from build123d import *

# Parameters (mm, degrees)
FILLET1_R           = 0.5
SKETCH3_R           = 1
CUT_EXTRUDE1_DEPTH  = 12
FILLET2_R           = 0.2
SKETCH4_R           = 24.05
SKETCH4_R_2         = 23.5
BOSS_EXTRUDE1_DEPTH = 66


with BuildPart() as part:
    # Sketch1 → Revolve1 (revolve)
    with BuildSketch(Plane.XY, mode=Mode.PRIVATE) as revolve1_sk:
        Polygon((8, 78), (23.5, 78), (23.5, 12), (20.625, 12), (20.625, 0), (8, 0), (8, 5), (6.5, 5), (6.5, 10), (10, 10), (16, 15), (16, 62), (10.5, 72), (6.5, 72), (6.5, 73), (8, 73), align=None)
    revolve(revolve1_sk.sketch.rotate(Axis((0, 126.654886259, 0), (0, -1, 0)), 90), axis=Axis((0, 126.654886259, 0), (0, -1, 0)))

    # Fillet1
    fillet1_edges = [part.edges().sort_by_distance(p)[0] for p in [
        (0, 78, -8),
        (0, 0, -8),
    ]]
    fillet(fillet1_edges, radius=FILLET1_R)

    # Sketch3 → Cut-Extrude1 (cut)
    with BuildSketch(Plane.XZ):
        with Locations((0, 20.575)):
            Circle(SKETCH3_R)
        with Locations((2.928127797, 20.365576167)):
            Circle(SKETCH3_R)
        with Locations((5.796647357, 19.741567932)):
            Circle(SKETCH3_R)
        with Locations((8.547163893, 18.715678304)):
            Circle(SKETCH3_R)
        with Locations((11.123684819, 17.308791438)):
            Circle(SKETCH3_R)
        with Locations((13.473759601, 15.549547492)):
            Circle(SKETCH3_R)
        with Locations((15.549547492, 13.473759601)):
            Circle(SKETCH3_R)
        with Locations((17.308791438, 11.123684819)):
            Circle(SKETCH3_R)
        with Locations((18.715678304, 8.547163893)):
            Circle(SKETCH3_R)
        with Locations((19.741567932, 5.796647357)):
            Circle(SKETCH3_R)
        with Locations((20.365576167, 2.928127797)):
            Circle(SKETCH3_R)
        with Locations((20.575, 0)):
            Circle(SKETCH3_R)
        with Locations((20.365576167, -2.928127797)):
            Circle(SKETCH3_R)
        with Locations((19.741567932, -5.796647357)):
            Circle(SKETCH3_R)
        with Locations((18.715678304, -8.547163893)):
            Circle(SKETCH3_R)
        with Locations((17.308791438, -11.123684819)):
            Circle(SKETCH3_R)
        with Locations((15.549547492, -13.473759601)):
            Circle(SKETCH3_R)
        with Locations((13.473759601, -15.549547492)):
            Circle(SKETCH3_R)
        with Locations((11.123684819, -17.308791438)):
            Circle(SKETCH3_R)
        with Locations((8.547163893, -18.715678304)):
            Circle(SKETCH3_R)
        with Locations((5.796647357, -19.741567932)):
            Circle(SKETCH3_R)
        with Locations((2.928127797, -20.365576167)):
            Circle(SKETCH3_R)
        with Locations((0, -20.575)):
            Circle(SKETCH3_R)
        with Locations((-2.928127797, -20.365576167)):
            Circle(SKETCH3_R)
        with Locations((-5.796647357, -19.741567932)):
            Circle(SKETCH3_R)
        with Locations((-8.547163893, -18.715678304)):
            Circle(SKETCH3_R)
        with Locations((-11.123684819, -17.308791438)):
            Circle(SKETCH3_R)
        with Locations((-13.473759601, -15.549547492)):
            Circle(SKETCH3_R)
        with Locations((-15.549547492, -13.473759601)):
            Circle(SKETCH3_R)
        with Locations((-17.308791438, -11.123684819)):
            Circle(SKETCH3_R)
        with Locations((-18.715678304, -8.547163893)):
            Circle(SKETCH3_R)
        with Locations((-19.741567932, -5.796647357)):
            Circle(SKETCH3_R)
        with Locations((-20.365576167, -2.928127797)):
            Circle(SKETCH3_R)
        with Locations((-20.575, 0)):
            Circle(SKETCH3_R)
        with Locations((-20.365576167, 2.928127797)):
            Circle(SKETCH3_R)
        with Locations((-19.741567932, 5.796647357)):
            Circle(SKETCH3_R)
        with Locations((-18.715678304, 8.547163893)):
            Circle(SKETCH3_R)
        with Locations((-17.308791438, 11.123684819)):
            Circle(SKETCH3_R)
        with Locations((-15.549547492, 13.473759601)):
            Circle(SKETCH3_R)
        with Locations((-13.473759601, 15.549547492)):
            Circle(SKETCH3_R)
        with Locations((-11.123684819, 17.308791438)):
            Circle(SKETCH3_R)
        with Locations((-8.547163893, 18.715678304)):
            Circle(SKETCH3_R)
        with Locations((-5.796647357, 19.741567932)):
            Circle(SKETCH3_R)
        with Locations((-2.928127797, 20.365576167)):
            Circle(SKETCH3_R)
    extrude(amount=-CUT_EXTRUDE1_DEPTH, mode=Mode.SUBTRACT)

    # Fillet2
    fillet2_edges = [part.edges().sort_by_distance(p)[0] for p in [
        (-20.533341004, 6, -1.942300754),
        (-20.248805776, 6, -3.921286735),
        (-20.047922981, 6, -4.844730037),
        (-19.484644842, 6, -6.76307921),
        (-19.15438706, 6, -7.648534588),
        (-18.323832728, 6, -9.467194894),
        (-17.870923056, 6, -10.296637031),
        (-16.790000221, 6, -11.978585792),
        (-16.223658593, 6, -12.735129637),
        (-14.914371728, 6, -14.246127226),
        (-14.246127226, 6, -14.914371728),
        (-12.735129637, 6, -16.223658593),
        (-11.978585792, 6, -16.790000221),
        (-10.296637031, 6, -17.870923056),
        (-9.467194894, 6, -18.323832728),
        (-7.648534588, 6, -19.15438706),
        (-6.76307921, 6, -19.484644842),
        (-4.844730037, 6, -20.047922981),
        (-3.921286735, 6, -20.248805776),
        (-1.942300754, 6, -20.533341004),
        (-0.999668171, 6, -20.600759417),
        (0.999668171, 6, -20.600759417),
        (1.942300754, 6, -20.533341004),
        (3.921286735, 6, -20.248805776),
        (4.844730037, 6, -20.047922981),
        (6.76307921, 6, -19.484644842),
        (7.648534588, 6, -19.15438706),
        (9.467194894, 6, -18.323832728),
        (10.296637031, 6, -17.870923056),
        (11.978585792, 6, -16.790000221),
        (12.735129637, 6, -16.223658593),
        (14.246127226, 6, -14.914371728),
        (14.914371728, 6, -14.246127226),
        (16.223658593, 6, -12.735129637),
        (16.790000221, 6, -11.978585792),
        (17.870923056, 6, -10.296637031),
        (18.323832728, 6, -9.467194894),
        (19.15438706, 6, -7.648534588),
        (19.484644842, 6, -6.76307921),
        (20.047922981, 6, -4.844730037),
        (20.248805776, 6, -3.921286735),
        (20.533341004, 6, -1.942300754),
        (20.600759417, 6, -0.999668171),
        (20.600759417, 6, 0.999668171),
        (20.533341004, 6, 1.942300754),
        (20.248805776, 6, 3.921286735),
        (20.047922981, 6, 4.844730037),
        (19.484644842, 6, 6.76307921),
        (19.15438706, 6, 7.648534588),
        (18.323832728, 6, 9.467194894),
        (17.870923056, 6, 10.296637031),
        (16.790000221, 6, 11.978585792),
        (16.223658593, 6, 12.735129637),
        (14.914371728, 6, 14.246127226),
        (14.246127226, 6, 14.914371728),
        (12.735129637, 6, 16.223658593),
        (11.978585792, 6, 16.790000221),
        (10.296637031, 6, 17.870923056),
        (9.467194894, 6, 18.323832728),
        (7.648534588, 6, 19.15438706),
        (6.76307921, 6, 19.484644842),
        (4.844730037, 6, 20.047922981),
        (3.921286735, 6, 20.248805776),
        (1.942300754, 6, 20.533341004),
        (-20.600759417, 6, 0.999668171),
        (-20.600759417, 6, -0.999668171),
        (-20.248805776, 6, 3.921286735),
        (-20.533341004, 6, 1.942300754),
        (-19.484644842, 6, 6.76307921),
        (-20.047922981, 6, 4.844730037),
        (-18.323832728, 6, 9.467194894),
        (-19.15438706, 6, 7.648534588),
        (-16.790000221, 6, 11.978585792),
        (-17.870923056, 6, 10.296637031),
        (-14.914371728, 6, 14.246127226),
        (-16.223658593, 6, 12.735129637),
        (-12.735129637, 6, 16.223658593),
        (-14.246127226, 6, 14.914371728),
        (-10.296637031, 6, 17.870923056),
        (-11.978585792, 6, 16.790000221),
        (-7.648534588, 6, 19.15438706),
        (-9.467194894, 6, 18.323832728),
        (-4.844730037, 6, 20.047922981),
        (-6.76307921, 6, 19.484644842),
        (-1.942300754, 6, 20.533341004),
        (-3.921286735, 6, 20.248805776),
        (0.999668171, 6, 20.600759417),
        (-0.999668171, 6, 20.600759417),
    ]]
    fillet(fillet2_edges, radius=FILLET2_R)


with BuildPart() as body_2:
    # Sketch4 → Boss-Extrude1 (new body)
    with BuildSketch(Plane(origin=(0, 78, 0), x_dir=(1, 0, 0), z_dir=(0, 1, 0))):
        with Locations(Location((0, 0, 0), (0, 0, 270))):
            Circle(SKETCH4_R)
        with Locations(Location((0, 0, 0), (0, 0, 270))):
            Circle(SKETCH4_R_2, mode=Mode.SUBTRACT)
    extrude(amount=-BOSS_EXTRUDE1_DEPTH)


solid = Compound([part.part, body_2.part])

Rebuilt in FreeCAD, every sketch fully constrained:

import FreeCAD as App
import Part
import Sketcher
from FreeCAD import Vector
Q = App.Units.Quantity


def edges_at(feature, points):
    """Names of the edges that pass closest to the given points."""
    edges = feature.Shape.Edges
    near = lambda p: min(range(len(edges)), key=lambda i: edges[i].distToShape(Part.Vertex(*p))[0])
    return sorted({f"Edge{near(p) + 1}" for p in points})

doc = App.newDocument("Part")
body = doc.addObject("PartDesign::Body", "Body")

# Sketch on XY plane
sketch1 = doc.addObject("Sketcher::SketchObject", "Sketch")
body.addObject(sketch1)
sketch1.AttachmentSupport = (doc.XY_Plane, [""])
sketch1.MapMode = "FlatFace"
sketch1.addGeometry(Part.LineSegment(Vector(23.5, 78, 0), Vector(8, 78, 0)), False)
sketch1.addGeometry(Part.LineSegment(Vector(8, 78, 0), Vector(8, 73, 0)), False)
sketch1.addGeometry(Part.LineSegment(Vector(8, 73, 0), Vector(6.5, 73, 0)), False)
sketch1.addGeometry(Part.LineSegment(Vector(6.5, 73, 0), Vector(6.5, 72, 0)), False)
sketch1.addGeometry(Part.LineSegment(Vector(6.5, 72, 0), Vector(10.5, 72, 0)), False)
sketch1.addGeometry(Part.LineSegment(Vector(10.5, 72, 0), Vector(16, 62, 0)), False)
sketch1.addGeometry(Part.LineSegment(Vector(16, 62, 0), Vector(16, 15, 0)), False)
sketch1.addGeometry(Part.LineSegment(Vector(16, 15, 0), Vector(10, 10, 0)), False)
sketch1.addGeometry(Part.LineSegment(Vector(10, 10, 0), Vector(6.5, 10, 0)), False)
sketch1.addGeometry(Part.LineSegment(Vector(6.5, 10, 0), Vector(6.5, 5, 0)), False)
sketch1.addGeometry(Part.LineSegment(Vector(6.5, 5, 0), Vector(8, 5, 0)), False)
sketch1.addGeometry(Part.LineSegment(Vector(8, 5, 0), Vector(8, 0, 0)), False)
sketch1.addGeometry(Part.LineSegment(Vector(8, 0, 0), Vector(20.6, 0, 0)), False)
sketch1.addGeometry(Part.LineSegment(Vector(20.6, 0, 0), Vector(20.6, 12, 0)), False)
sketch1.addGeometry(Part.LineSegment(Vector(20.6, 12, 0), Vector(23.5, 12, 0)), False)
sketch1.addGeometry(Part.LineSegment(Vector(23.5, 12, 0), Vector(23.5, 78, 0)), False)
sketch1.addConstraint(Sketcher.Constraint("Coincident", 0, 2, 1, 1))
sketch1.addConstraint(Sketcher.Constraint("Coincident", 1, 2, 2, 1))
sketch1.addConstraint(Sketcher.Constraint("Coincident", 2, 2, 3, 1))
sketch1.addConstraint(Sketcher.Constraint("Coincident", 3, 2, 4, 1))
sketch1.addConstraint(Sketcher.Constraint("Coincident", 4, 2, 5, 1))
sketch1.addConstraint(Sketcher.Constraint("Coincident", 5, 2, 6, 1))
sketch1.addConstraint(Sketcher.Constraint("Coincident", 6, 2, 7, 1))
sketch1.addConstraint(Sketcher.Constraint("Coincident", 7, 2, 8, 1))
sketch1.addConstraint(Sketcher.Constraint("Coincident", 8, 2, 9, 1))
sketch1.addConstraint(Sketcher.Constraint("Coincident", 9, 2, 10, 1))
sketch1.addConstraint(Sketcher.Constraint("Coincident", 10, 2, 11, 1))
sketch1.addConstraint(Sketcher.Constraint("Coincident", 11, 2, 12, 1))
sketch1.addConstraint(Sketcher.Constraint("Coincident", 12, 2, 13, 1))
sketch1.addConstraint(Sketcher.Constraint("Coincident", 13, 2, 14, 1))
sketch1.addConstraint(Sketcher.Constraint("Coincident", 14, 2, 15, 1))
sketch1.addConstraint(Sketcher.Constraint("Coincident", 15, 2, 0, 1))
sketch1.addConstraint(Sketcher.Constraint("Horizontal", 0))
sketch1.addConstraint(Sketcher.Constraint("Vertical", 1))
sketch1.addConstraint(Sketcher.Constraint("Horizontal", 2))
sketch1.addConstraint(Sketcher.Constraint("Vertical", 3))
sketch1.addConstraint(Sketcher.Constraint("Horizontal", 4))
sketch1.addConstraint(Sketcher.Constraint("Vertical", 6))
sketch1.addConstraint(Sketcher.Constraint("Horizontal", 8))
sketch1.addConstraint(Sketcher.Constraint("Vertical", 9))
sketch1.addConstraint(Sketcher.Constraint("Horizontal", 10))
sketch1.addConstraint(Sketcher.Constraint("Vertical", 11))
sketch1.addConstraint(Sketcher.Constraint("Horizontal", 12))
sketch1.addConstraint(Sketcher.Constraint("Vertical", 13))
sketch1.addConstraint(Sketcher.Constraint("Horizontal", 14))
sketch1.addConstraint(Sketcher.Constraint("Vertical", 15))
sketch1.addConstraint(Sketcher.Constraint("PointOnObject", 11, 2, -1))
sketch1.addConstraint(Sketcher.Constraint("Vertical", 3, 2, 8, 2))
sketch1.addConstraint(Sketcher.Constraint("Vertical", 1, 2, 10, 2))
sketch1.addConstraint(Sketcher.Constraint("Equal", 1, 9))
sketch1.addConstraint(Sketcher.Constraint("Equal", 9, 11))
sketch1.addConstraint(Sketcher.Constraint("DistanceX", 4, 1, 4, 2, Q("4 mm")))
sketch1.addConstraint(Sketcher.Constraint("DistanceY", 1, 2, 1, 1, Q("5 mm")))
sketch1.addConstraint(Sketcher.Constraint("DistanceY", 3, 2, 3, 1, Q("1 mm")))
sketch1.addConstraint(Sketcher.Constraint("DistanceY", 6, 2, 6, 1, Q("47 mm")))
sketch1.addConstraint(Sketcher.Constraint("DistanceY", 13, 1, 13, 2, Q("12 mm")))
sketch1.addConstraint(Sketcher.Constraint("DistanceY", 15, 1, 15, 2, Q("66 mm")))
sketch1.addConstraint(Sketcher.Constraint("DistanceX", 0, 2, 0, 1, Q("15.5 mm")))
sketch1.addConstraint(Sketcher.Constraint("DistanceX", 2, 2, 2, 1, Q("1.5 mm")))
sketch1.addConstraint(Sketcher.Constraint("DistanceX", 8, 2, 8, 1, Q("3.5 mm")))
sketch1.addConstraint(Sketcher.Constraint("DistanceX", -1, 1, 0, 2, Q("8 mm")))
sketch1.addConstraint(Sketcher.Constraint("DistanceX", -1, 1, 5, 2, Q("16 mm")))
sketch1.addConstraint(Sketcher.Constraint("DistanceY", -1, 1, 5, 2, Q("62 mm")))
sketch1.addConstraint(Sketcher.Constraint("DistanceX", 12, 1, 12, 2, Q("12.625 mm")))
revolution = doc.addObject("PartDesign::Revolution", "Revolution")
body.addObject(revolution)
revolution.Profile = sketch1
revolution.ReferenceAxis = (sketch1, ["V_Axis"])
revolution.Angle = 360
doc.recompute()

fillet = doc.addObject("PartDesign::Fillet", "Fillet")
body.addObject(fillet)
fillet.Base = (revolution, edges_at(revolution, [(0, 78, -8), (0, 0, -8)]))
fillet.Radius = 0.5

# Sketch on XZ plane
sketch2 = doc.addObject("Sketcher::SketchObject", "Sketch001")
body.addObject(sketch2)
sketch2.AttachmentSupport = (doc.XZ_Plane, [""])
sketch2.MapMode = "FlatFace"
sketch2.addGeometry(Part.Circle(Vector(0, 20.6, 0), Vector(0, 0, 1), 1), False)
sketch2.addGeometry(Part.Circle(Vector(2.9, 20.4, 0), Vector(0, 0, 1), 1), False)
sketch2.addGeometry(Part.Circle(Vector(5.8, 19.7, 0), Vector(0, 0, 1), 1), False)
sketch2.addGeometry(Part.Circle(Vector(8.5, 18.7, 0), Vector(0, 0, 1), 1), False)
sketch2.addGeometry(Part.Circle(Vector(11.1, 17.3, 0), Vector(0, 0, 1), 1), False)
sketch2.addGeometry(Part.Circle(Vector(13.5, 15.5, 0), Vector(0, 0, 1), 1), False)
sketch2.addGeometry(Part.Circle(Vector(15.5, 13.5, 0), Vector(0, 0, 1), 1), False)
sketch2.addGeometry(Part.Circle(Vector(17.3, 11.1, 0), Vector(0, 0, 1), 1), False)
sketch2.addGeometry(Part.Circle(Vector(18.7, 8.5, 0), Vector(0, 0, 1), 1), False)
sketch2.addGeometry(Part.Circle(Vector(19.7, 5.8, 0), Vector(0, 0, 1), 1), False)
sketch2.addGeometry(Part.Circle(Vector(20.4, 2.9, 0), Vector(0, 0, 1), 1), False)
sketch2.addGeometry(Part.Circle(Vector(20.6, 0, 0), Vector(0, 0, 1), 1), False)
sketch2.addGeometry(Part.Circle(Vector(20.4, -2.9, 0), Vector(0, 0, 1), 1), False)
sketch2.addGeometry(Part.Circle(Vector(19.7, -5.8, 0), Vector(0, 0, 1), 1), False)
sketch2.addGeometry(Part.Circle(Vector(18.7, -8.5, 0), Vector(0, 0, 1), 1), False)
sketch2.addGeometry(Part.Circle(Vector(17.3, -11.1, 0), Vector(0, 0, 1), 1), False)
sketch2.addGeometry(Part.Circle(Vector(15.5, -13.5, 0), Vector(0, 0, 1), 1), False)
sketch2.addGeometry(Part.Circle(Vector(13.5, -15.5, 0), Vector(0, 0, 1), 1), False)
sketch2.addGeometry(Part.Circle(Vector(11.1, -17.3, 0), Vector(0, 0, 1), 1), False)
sketch2.addGeometry(Part.Circle(Vector(8.5, -18.7, 0), Vector(0, 0, 1), 1), False)
sketch2.addGeometry(Part.Circle(Vector(5.8, -19.7, 0), Vector(0, 0, 1), 1), False)
sketch2.addGeometry(Part.Circle(Vector(2.9, -20.4, 0), Vector(0, 0, 1), 1), False)
sketch2.addGeometry(Part.Circle(Vector(0, -20.6, 0), Vector(0, 0, 1), 1), False)
sketch2.addGeometry(Part.Circle(Vector(-2.9, -20.4, 0), Vector(0, 0, 1), 1), False)
sketch2.addGeometry(Part.Circle(Vector(-5.8, -19.7, 0), Vector(0, 0, 1), 1), False)
sketch2.addGeometry(Part.Circle(Vector(-8.5, -18.7, 0), Vector(0, 0, 1), 1), False)
sketch2.addGeometry(Part.Circle(Vector(-11.1, -17.3, 0), Vector(0, 0, 1), 1), False)
sketch2.addGeometry(Part.Circle(Vector(-13.5, -15.5, 0), Vector(0, 0, 1), 1), False)
sketch2.addGeometry(Part.Circle(Vector(-15.5, -13.5, 0), Vector(0, 0, 1), 1), False)
sketch2.addGeometry(Part.Circle(Vector(-17.3, -11.1, 0), Vector(0, 0, 1), 1), False)
sketch2.addGeometry(Part.Circle(Vector(-18.7, -8.5, 0), Vector(0, 0, 1), 1), False)
sketch2.addGeometry(Part.Circle(Vector(-19.7, -5.8, 0), Vector(0, 0, 1), 1), False)
sketch2.addGeometry(Part.Circle(Vector(-20.4, -2.9, 0), Vector(0, 0, 1), 1), False)
sketch2.addGeometry(Part.Circle(Vector(-20.6, 0, 0), Vector(0, 0, 1), 1), False)
sketch2.addGeometry(Part.Circle(Vector(-20.4, 2.9, 0), Vector(0, 0, 1), 1), False)
sketch2.addGeometry(Part.Circle(Vector(-19.7, 5.8, 0), Vector(0, 0, 1), 1), False)
sketch2.addGeometry(Part.Circle(Vector(-18.7, 8.5, 0), Vector(0, 0, 1), 1), False)
sketch2.addGeometry(Part.Circle(Vector(-17.3, 11.1, 0), Vector(0, 0, 1), 1), False)
sketch2.addGeometry(Part.Circle(Vector(-15.5, 13.5, 0), Vector(0, 0, 1), 1), False)
sketch2.addGeometry(Part.Circle(Vector(-13.5, 15.5, 0), Vector(0, 0, 1), 1), False)
sketch2.addGeometry(Part.Circle(Vector(-11.1, 17.3, 0), Vector(0, 0, 1), 1), False)
sketch2.addGeometry(Part.Circle(Vector(-8.5, 18.7, 0), Vector(0, 0, 1), 1), False)
sketch2.addGeometry(Part.Circle(Vector(-5.8, 19.7, 0), Vector(0, 0, 1), 1), False)
sketch2.addGeometry(Part.Circle(Vector(-2.9, 20.4, 0), Vector(0, 0, 1), 1), False)
sketch2.addConstraint(Sketcher.Constraint("Equal", 0, 1))
sketch2.addConstraint(Sketcher.Constraint("Equal", 1, 2))
sketch2.addConstraint(Sketcher.Constraint("Equal", 2, 3))
sketch2.addConstraint(Sketcher.Constraint("Equal", 3, 4))
sketch2.addConstraint(Sketcher.Constraint("Equal", 4, 5))
sketch2.addConstraint(Sketcher.Constraint("Equal", 5, 6))
sketch2.addConstraint(Sketcher.Constraint("Equal", 6, 7))
sketch2.addConstraint(Sketcher.Constraint("Equal", 7, 8))
sketch2.addConstraint(Sketcher.Constraint("Equal", 8, 9))
sketch2.addConstraint(Sketcher.Constraint("Equal", 9, 10))
sketch2.addConstraint(Sketcher.Constraint("Equal", 10, 11))
sketch2.addConstraint(Sketcher.Constraint("Equal", 11, 12))
sketch2.addConstraint(Sketcher.Constraint("Equal", 12, 13))
sketch2.addConstraint(Sketcher.Constraint("Equal", 13, 14))
sketch2.addConstraint(Sketcher.Constraint("Equal", 14, 15))
sketch2.addConstraint(Sketcher.Constraint("Equal", 15, 16))
sketch2.addConstraint(Sketcher.Constraint("Equal", 16, 17))
sketch2.addConstraint(Sketcher.Constraint("Equal", 17, 18))
sketch2.addConstraint(Sketcher.Constraint("Equal", 18, 19))
sketch2.addConstraint(Sketcher.Constraint("Equal", 19, 20))
sketch2.addConstraint(Sketcher.Constraint("Equal", 20, 21))
sketch2.addConstraint(Sketcher.Constraint("Equal", 21, 22))
sketch2.addConstraint(Sketcher.Constraint("Equal", 22, 23))
sketch2.addConstraint(Sketcher.Constraint("Equal", 23, 24))
sketch2.addConstraint(Sketcher.Constraint("Equal", 24, 25))
sketch2.addConstraint(Sketcher.Constraint("Equal", 25, 26))
sketch2.addConstraint(Sketcher.Constraint("Equal", 26, 27))
sketch2.addConstraint(Sketcher.Constraint("Equal", 27, 28))
sketch2.addConstraint(Sketcher.Constraint("Equal", 28, 29))
sketch2.addConstraint(Sketcher.Constraint("Equal", 29, 30))
sketch2.addConstraint(Sketcher.Constraint("Equal", 30, 31))
sketch2.addConstraint(Sketcher.Constraint("Equal", 31, 32))
sketch2.addConstraint(Sketcher.Constraint("Equal", 32, 33))
sketch2.addConstraint(Sketcher.Constraint("Equal", 33, 34))
sketch2.addConstraint(Sketcher.Constraint("Equal", 34, 35))
sketch2.addConstraint(Sketcher.Constraint("Equal", 35, 36))
sketch2.addConstraint(Sketcher.Constraint("Equal", 36, 37))
sketch2.addConstraint(Sketcher.Constraint("Equal", 37, 38))
sketch2.addConstraint(Sketcher.Constraint("Equal", 38, 39))
sketch2.addConstraint(Sketcher.Constraint("Equal", 39, 40))
sketch2.addConstraint(Sketcher.Constraint("Equal", 40, 41))
sketch2.addConstraint(Sketcher.Constraint("Equal", 41, 42))
sketch2.addConstraint(Sketcher.Constraint("Equal", 42, 43))
sketch2.addConstraint(Sketcher.Constraint("Symmetric", 0, 3, 22, 3, -1, 1))
sketch2.addConstraint(Sketcher.Constraint("Symmetric", 1, 3, 23, 3, -1, 1))
sketch2.addConstraint(Sketcher.Constraint("Symmetric", 2, 3, 24, 3, -1, 1))
sketch2.addConstraint(Sketcher.Constraint("Symmetric", 3, 3, 25, 3, -1, 1))
sketch2.addConstraint(Sketcher.Constraint("Symmetric", 4, 3, 26, 3, -1, 1))
sketch2.addConstraint(Sketcher.Constraint("Symmetric", 5, 3, 27, 3, -1, 1))
sketch2.addConstraint(Sketcher.Constraint("Symmetric", 6, 3, 28, 3, -1, 1))
sketch2.addConstraint(Sketcher.Constraint("Symmetric", 7, 3, 29, 3, -1, 1))
sketch2.addConstraint(Sketcher.Constraint("Symmetric", 8, 3, 30, 3, -1, 1))
sketch2.addConstraint(Sketcher.Constraint("Symmetric", 9, 3, 31, 3, -1, 1))
sketch2.addConstraint(Sketcher.Constraint("Symmetric", 10, 3, 32, 3, -1, 1))
sketch2.addConstraint(Sketcher.Constraint("Symmetric", 11, 3, 33, 3, -1, 1))
sketch2.addConstraint(Sketcher.Constraint("Symmetric", 12, 3, 34, 3, -1, 1))
sketch2.addConstraint(Sketcher.Constraint("Symmetric", 13, 3, 35, 3, -1, 1))
sketch2.addConstraint(Sketcher.Constraint("Symmetric", 14, 3, 36, 3, -1, 1))
sketch2.addConstraint(Sketcher.Constraint("Symmetric", 15, 3, 37, 3, -1, 1))
sketch2.addConstraint(Sketcher.Constraint("Symmetric", 16, 3, 38, 3, -1, 1))
sketch2.addConstraint(Sketcher.Constraint("Symmetric", 17, 3, 39, 3, -1, 1))
sketch2.addConstraint(Sketcher.Constraint("Symmetric", 18, 3, 40, 3, -1, 1))
sketch2.addConstraint(Sketcher.Constraint("Symmetric", 19, 3, 41, 3, -1, 1))
sketch2.addConstraint(Sketcher.Constraint("Symmetric", 20, 3, 42, 3, -1, 1))
sketch2.addConstraint(Sketcher.Constraint("Symmetric", 21, 3, 43, 3, -1, 1))
sketch2.addConstraint(Sketcher.Constraint("Symmetric", 21, 3, 23, 3, -2))
sketch2.addConstraint(Sketcher.Constraint("Symmetric", 20, 3, 24, 3, -2))
sketch2.addConstraint(Sketcher.Constraint("Symmetric", 19, 3, 25, 3, -2))
sketch2.addConstraint(Sketcher.Constraint("Symmetric", 18, 3, 26, 3, -2))
sketch2.addConstraint(Sketcher.Constraint("Symmetric", 17, 3, 27, 3, -2))
sketch2.addConstraint(Sketcher.Constraint("Symmetric", 16, 3, 28, 3, -2))
sketch2.addConstraint(Sketcher.Constraint("Symmetric", 15, 3, 29, 3, -2))
sketch2.addConstraint(Sketcher.Constraint("Symmetric", 14, 3, 30, 3, -2))
sketch2.addConstraint(Sketcher.Constraint("Symmetric", 13, 3, 31, 3, -2))
sketch2.addConstraint(Sketcher.Constraint("Symmetric", 12, 3, 32, 3, -2))
sketch2.addConstraint(Sketcher.Constraint("PointOnObject", 0, 3, -2))
sketch2.addConstraint(Sketcher.Constraint("PointOnObject", 11, 3, -1))
sketch2.addConstraint(Sketcher.Constraint("Diameter", 0, Q("2 mm")))
sketch2.addConstraint(Sketcher.Constraint("DistanceY", -1, 1, 0, 3, Q("20.575 mm")))
sketch2.addConstraint(Sketcher.Constraint("DistanceX", -1, 1, 11, 3, Q("20.575 mm")))
sketch2.addConstraint(Sketcher.Constraint("DistanceX", 2, 3, 6, 3, Q("9.7529 mm")))
sketch2.addConstraint(Sketcher.Constraint("DistanceY", 9, 3, 5, 3, Q("9.7529 mm")))
sketch2.addConstraint(Sketcher.Constraint("DistanceY", -1, 1, 3, 3, Q("18.715678 mm")))
sketch2.addConstraint(Sketcher.Constraint("DistanceY", -1, 1, 4, 3, Q("17.308791 mm")))
sketch2.addConstraint(Sketcher.Constraint("DistanceX", -1, 1, 5, 3, Q("13.47376 mm")))
sketch2.addConstraint(Sketcher.Constraint("DistanceY", -1, 1, 6, 3, Q("13.47376 mm")))
sketch2.addConstraint(Sketcher.Constraint("DistanceX", -1, 1, 7, 3, Q("17.308791 mm")))
sketch2.addConstraint(Sketcher.Constraint("DistanceX", -1, 1, 8, 3, Q("18.715678 mm")))
sketch2.addConstraint(Sketcher.Constraint("DistanceX", 1, 3, 2, 3, Q("2.86852 mm")))
sketch2.addConstraint(Sketcher.Constraint("DistanceY", 2, 3, 1, 3, Q("0.624008 mm")))
sketch2.addConstraint(Sketcher.Constraint("DistanceY", 3, 3, 2, 3, Q("1.02589 mm")))
sketch2.addConstraint(Sketcher.Constraint("DistanceX", 3, 3, 4, 3, Q("2.576521 mm")))
sketch2.addConstraint(Sketcher.Constraint("DistanceY", 5, 3, 3, 3, Q("3.166131 mm")))
sketch2.addConstraint(Sketcher.Constraint("DistanceX", 1, 3, 5, 3, Q("10.545632 mm")))
sketch2.addConstraint(Sketcher.Constraint("DistanceY", 8, 3, 7, 3, Q("2.576521 mm")))
sketch2.addConstraint(Sketcher.Constraint("DistanceX", 8, 3, 9, 3, Q("1.02589 mm")))
sketch2.addConstraint(Sketcher.Constraint("DistanceX", 9, 3, 10, 3, Q("0.624008 mm")))
sketch2.addConstraint(Sketcher.Constraint("DistanceY", 10, 3, 9, 3, Q("2.86852 mm")))
sketch2.addConstraint(Sketcher.Constraint("DistanceY", 12, 3, 8, 3, Q("11.475292 mm")))
sketch2.addConstraint(Sketcher.Constraint("DistanceX", 23, 3, 19, 3, Q("11.475292 mm")))
pocket1 = doc.addObject("PartDesign::Pocket", "Pocket")
body.addObject(pocket1)
pocket1.Profile = sketch2
pocket1.Length = 12
doc.recompute()

fillet2 = doc.addObject("PartDesign::Fillet", "Fillet001")
body.addObject(fillet2)
fillet2.Base = (pocket1, edges_at(pocket1, [
    (-20.533, 6, -1.942),
    (-20.249, 6, -3.921),
    (-20.048, 6, -4.845),
    (-19.485, 6, -6.763),
    (-19.154, 6, -7.649),
    (-18.324, 6, -9.467),
    (-17.871, 6, -10.297),
    (-16.79, 6, -11.979),
    (-16.224, 6, -12.735),
    (-14.914, 6, -14.246),
    (-14.246, 6, -14.914),
    (-12.735, 6, -16.224),
    (-11.979, 6, -16.79),
    (-10.297, 6, -17.871),
    (-9.467, 6, -18.324),
    (-7.649, 6, -19.154),
    (-6.763, 6, -19.485),
    (-4.845, 6, -20.048),
    (-3.921, 6, -20.249),
    (-1.942, 6, -20.533),
    (-1, 6, -20.601),
    (1, 6, -20.601),
    (1.942, 6, -20.533),
    (3.921, 6, -20.249),
    (4.845, 6, -20.048),
    (6.763, 6, -19.485),
    (7.649, 6, -19.154),
    (9.467, 6, -18.324),
    (10.297, 6, -17.871),
    (11.979, 6, -16.79),
    (12.735, 6, -16.224),
    (14.246, 6, -14.914),
    (14.914, 6, -14.246),
    (16.224, 6, -12.735),
    (16.79, 6, -11.979),
    (17.871, 6, -10.297),
    (18.324, 6, -9.467),
    (19.154, 6, -7.649),
    (19.485, 6, -6.763),
    (20.048, 6, -4.845),
    (20.249, 6, -3.921),
    (20.533, 6, -1.942),
    (20.601, 6, -1),
    (20.601, 6, 1),
    (20.533, 6, 1.942),
    (20.249, 6, 3.921),
    (20.048, 6, 4.845),
    (19.485, 6, 6.763),
    (19.154, 6, 7.649),
    (18.324, 6, 9.467),
    (17.871, 6, 10.297),
    (16.79, 6, 11.979),
    (16.224, 6, 12.735),
    (14.914, 6, 14.246),
    (14.246, 6, 14.914),
    (12.735, 6, 16.224),
    (11.979, 6, 16.79),
    (10.297, 6, 17.871),
    (9.467, 6, 18.324),
    (7.649, 6, 19.154),
    (6.763, 6, 19.485),
    (4.845, 6, 20.048),
    (3.921, 6, 20.249),
    (1.942, 6, 20.533),
    (-20.601, 6, 1),
    (-20.601, 6, -1),
    (-20.249, 6, 3.921),
    (-20.533, 6, 1.942),
    (-19.485, 6, 6.763),
    (-20.048, 6, 4.845),
    (-18.324, 6, 9.467),
    (-19.154, 6, 7.649),
    (-16.79, 6, 11.979),
    (-17.871, 6, 10.297),
    (-14.914, 6, 14.246),
    (-16.224, 6, 12.735),
    (-12.735, 6, 16.224),
    (-14.246, 6, 14.914),
    (-10.297, 6, 17.871),
    (-11.979, 6, 16.79),
    (-7.649, 6, 19.154),
    (-9.467, 6, 18.324),
    (-4.845, 6, 20.048),
    (-6.763, 6, 19.485),
    (-1.942, 6, 20.533),
    (-3.921, 6, 20.249),
    (1, 6, 20.601),
    (-1, 6, 20.601),
]))
fillet2.Radius = 0.2
body2 = doc.addObject("PartDesign::Body", "Body001")

# Sketch on XZ plane
sketch3 = doc.addObject("Sketcher::SketchObject", "Sketch002")
body2.addObject(sketch3)
sketch3.AttachmentSupport = (doc.getObject("XZ_Plane001"), [""])
sketch3.MapMode = "FlatFace"
sketch3.AttachmentOffset = App.Placement(Vector(0, 0, -78), App.Rotation())
sketch3.addGeometry(Part.Circle(Vector(0, 0, 0), Vector(0, 0, 1), 24), False)
sketch3.addGeometry(Part.Circle(Vector(0, 0, 0), Vector(0, 0, 1), 24), False)
sketch3.addConstraint(Sketcher.Constraint("Coincident", 0, 3, -1, 1))
sketch3.addConstraint(Sketcher.Constraint("Coincident", 1, 3, -1, 1))
sketch3.addConstraint(Sketcher.Constraint("Diameter", 1, Q("47 mm")))
sketch3.addConstraint(Sketcher.Constraint("Diameter", 0, Q("48.1 mm")))
pad1 = doc.addObject("PartDesign::Pad", "Pad")
body2.addObject(pad1)
pad1.Profile = sketch3
pad1.Length = 66

doc.recompute()
